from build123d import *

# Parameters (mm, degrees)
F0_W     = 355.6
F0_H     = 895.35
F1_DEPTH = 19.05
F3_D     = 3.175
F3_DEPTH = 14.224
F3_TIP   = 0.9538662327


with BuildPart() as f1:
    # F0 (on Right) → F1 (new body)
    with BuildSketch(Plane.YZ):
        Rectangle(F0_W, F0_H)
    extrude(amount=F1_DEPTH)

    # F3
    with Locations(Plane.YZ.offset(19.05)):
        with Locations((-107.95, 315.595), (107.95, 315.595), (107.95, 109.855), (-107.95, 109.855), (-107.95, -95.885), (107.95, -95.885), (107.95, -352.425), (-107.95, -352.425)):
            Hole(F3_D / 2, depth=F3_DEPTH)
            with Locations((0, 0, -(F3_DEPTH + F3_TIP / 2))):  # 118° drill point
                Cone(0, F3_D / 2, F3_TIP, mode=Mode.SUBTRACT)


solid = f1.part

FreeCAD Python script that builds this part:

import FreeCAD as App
import Part
import Sketcher
Q = App.Units.Quantity

doc = App.newDocument("Part")
body = doc.addObject("PartDesign::Body", "Body")

sketch1 = body.newObject("Sketcher::SketchObject", "Sketch")
sketch1.AttachmentSupport = (doc.getObject("YZ_Plane"), [""])
sketch1.MapMode = "FlatFace"
sketch1.addGeometry(Part.LineSegment(App.Vector(-178, 448, 0), App.Vector(-178, -448, 0)), False)
sketch1.addGeometry(Part.LineSegment(App.Vector(-178, -448, 0), App.Vector(178, -448, 0)), False)
sketch1.addGeometry(Part.LineSegment(App.Vector(178, -448, 0), App.Vector(178, 448, 0)), False)
sketch1.addGeometry(Part.LineSegment(App.Vector(178, 448, 0), App.Vector(-178, 448, 0)), False)
sketch1.addConstraint(Sketcher.Constraint("Coincident", 0, 2, 1, 1))
sketch1.addConstraint(Sketcher.Constraint("Coincident", 1, 2, 2, 1))
sketch1.addConstraint(Sketcher.Constraint("Coincident", 2, 2, 3, 1))
sketch1.addConstraint(Sketcher.Constraint("Coincident", 3, 2, 0, 1))
sketch1.addConstraint(Sketcher.Constraint("Vertical", 0))
sketch1.addConstraint(Sketcher.Constraint("Horizontal", 1))
sketch1.addConstraint(Sketcher.Constraint("Vertical", 2))
sketch1.addConstraint(Sketcher.Constraint("Horizontal", 3))
sketch1.addConstraint(Sketcher.Constraint("Symmetric", 0, 2, 2, 2, -1, 1))
sketch1.addConstraint(Sketcher.Constraint("DistanceX", 1, 1, 1, 2, Q("14 in")))
sketch1.addConstraint(Sketcher.Constraint("DistanceY", 0, 2, 0, 1, Q("35.25 in")))
pad1 = body.newObject("PartDesign::Pad", "Pad")
pad1.Profile = sketch1
pad1.Length = Q("0.75 in")

sketch2 = body.newObject("Sketcher::SketchObject", "Sketch001")
sketch2.AttachmentSupport = (doc.getObject("YZ_Plane"), [""])
sketch2.MapMode = "FlatFace"
sketch2.AttachmentOffset = App.Placement(App.Vector(0, 0, 0.75 * 25.4), App.Rotation())
sketch2.addGeometry(Part.Circle(App.Vector(-108, 315.6, 0), App.Vector(0, 0, 1), 1.6), False)
sketch2.addGeometry(Part.Circle(App.Vector(108, 315.6, 0), App.Vector(0, 0, 1), 1.6), False)
sketch2.addGeometry(Part.Circle(App.Vector(108, 109.9, 0), App.Vector(0, 0, 1), 1.6), False)
sketch2.addGeometry(Part.Circle(App.Vector(-108, 109.9, 0), App.Vector(0, 0, 1), 1.6), False)
sketch2.addGeometry(Part.Circle(App.Vector(-108, -95.9, 0), App.Vector(0, 0, 1), 1.6), False)
sketch2.addGeometry(Part.Circle(App.Vector(108, -95.9, 0), App.Vector(0, 0, 1), 1.6), False)
sketch2.addGeometry(Part.Circle(App.Vector(108, -352.4, 0), App.Vector(0, 0, 1), 1.6), False)
sketch2.addGeometry(Part.Circle(App.Vector(-108, -352.4, 0), App.Vector(0, 0, 1), 1.6), False)
sketch2.addConstraint(Sketcher.Constraint("Equal", 0, 1))
sketch2.addConstraint(Sketcher.Constraint("Equal", 1, 2))
sketch2.addConstraint(Sketcher.Constraint("Equal", 2, 3))
sketch2.addConstraint(Sketcher.Constraint("Equal", 3, 4))
sketch2.addConstraint(Sketcher.Constraint("Equal", 4, 5))
sketch2.addConstraint(Sketcher.Constraint("Equal", 5, 6))
sketch2.addConstraint(Sketcher.Constraint("Equal", 6, 7))
sketch2.addConstraint(Sketcher.Constraint("Symmetric", 0, 3, 1, 3, -2))
sketch2.addConstraint(Sketcher.Constraint("Symmetric", 2, 3, 3, 3, -2))
sketch2.addConstraint(Sketcher.Constraint("Symmetric", 4, 3, 5, 3, -2))
sketch2.addConstraint(Sketcher.Constraint("Symmetric", 6, 3, 7, 3, -2))
sketch2.addConstraint(Sketcher.Constraint("Vertical", 1, 3, 2, 3))
sketch2.addConstraint(Sketcher.Constraint("Vertical", 3, 3, 4, 3))
sketch2.addConstraint(Sketcher.Constraint("Vertical", 5, 3, 6, 3))
sketch2.addConstraint(Sketcher.Constraint("Diameter", 0, Q("0.125 in")))
sketch2.addConstraint(Sketcher.Constraint("DistanceX", 0, 3, 1, 3, Q("8.5 in")))
sketch2.addConstraint(Sketcher.Constraint("DistanceY", 2, 3, 1, 3, Q("8.1 in")))
sketch2.addConstraint(Sketcher.Constraint("DistanceY", 4, 3, 3, 3, Q("8.1 in")))
sketch2.addConstraint(Sketcher.Constraint("DistanceY", 6, 3, 5, 3, Q("10.1 in")))
sketch2.addConstraint(Sketcher.Constraint("DistanceY", -1, 1, 0, 3, Q("12.425 in")))
doc.recompute()
hole = body.newObject("PartDesign::Hole", "Hole")
hole.Profile = sketch2
hole.ThreadType = "None"
hole.Diameter = Q("0.125 in")
hole.DepthType = "Dimension"
hole.Depth = Q("0.56 in")
hole.DrillPoint = "Angled"
hole.DrillPointAngle = 118

doc.recompute()
